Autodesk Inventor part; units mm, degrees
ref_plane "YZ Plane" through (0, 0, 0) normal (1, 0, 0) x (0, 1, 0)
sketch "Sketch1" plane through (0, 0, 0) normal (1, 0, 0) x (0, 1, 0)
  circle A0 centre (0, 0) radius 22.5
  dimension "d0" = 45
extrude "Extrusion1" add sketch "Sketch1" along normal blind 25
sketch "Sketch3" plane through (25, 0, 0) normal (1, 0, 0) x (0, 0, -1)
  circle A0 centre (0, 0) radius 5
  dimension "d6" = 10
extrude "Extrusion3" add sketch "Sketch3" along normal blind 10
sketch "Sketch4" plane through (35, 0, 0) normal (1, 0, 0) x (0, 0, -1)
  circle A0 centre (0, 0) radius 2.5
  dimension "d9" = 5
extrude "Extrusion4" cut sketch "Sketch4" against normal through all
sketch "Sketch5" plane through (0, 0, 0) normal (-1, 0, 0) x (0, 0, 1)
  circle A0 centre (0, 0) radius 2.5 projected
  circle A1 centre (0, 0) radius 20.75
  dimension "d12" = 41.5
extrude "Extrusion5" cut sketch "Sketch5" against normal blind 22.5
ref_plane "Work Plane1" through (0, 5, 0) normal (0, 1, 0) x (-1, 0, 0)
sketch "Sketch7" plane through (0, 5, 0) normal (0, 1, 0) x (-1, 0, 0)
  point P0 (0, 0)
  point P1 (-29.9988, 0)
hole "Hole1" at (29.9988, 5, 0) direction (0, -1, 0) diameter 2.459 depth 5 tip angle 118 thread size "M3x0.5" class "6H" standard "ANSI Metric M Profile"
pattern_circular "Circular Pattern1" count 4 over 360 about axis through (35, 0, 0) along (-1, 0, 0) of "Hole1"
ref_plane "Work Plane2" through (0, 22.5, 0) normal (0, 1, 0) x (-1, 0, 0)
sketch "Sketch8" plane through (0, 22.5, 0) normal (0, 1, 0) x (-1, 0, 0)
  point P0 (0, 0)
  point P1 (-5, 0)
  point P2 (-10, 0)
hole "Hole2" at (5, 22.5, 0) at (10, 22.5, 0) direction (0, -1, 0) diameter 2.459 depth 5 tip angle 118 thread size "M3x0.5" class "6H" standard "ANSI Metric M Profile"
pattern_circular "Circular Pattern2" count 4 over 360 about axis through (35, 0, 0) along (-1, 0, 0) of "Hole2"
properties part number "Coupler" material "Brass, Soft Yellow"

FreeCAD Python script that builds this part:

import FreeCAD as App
import Part
import Sketcher
from FreeCAD import Vector
Q = App.Units.Quantity

doc = App.newDocument("Part")
body = doc.addObject("PartDesign::Body", "Body")

# Sketch on YZ plane
sketch1 = body.newObject("Sketcher::SketchObject", "Sketch")
sketch1.AttachmentSupport = (doc.getObject("YZ_Plane"), [""])
sketch1.MapMode = "FlatFace"
sketch1.addGeometry(Part.Circle(Vector(0, 0, 0), Vector(0, 0, 1), 22), False)
sketch1.addConstraint([
    Sketcher.Constraint("Coincident", 0, 3, -1, 1),
    Sketcher.Constraint("Diameter", 0, Q("45 mm")),
])
pad1 = body.newObject("PartDesign::Pad", "Pad")
pad1.Profile = sketch1
pad1.Length = 25

# Sketch on YZ plane
sketch2 = body.newObject("Sketcher::SketchObject", "Sketch001")
sketch2.AttachmentSupport = (doc.getObject("YZ_Plane"), [""])
sketch2.MapMode = "FlatFace"
sketch2.AttachmentOffset = App.Placement(Vector(0, 0, 25), App.Rotation())
sketch2.addGeometry(Part.Circle(Vector(0, 0, 0), Vector(0, 0, 1), 5), False)
sketch2.addConstraint([
    Sketcher.Constraint("Coincident", 0, 3, -1, 1),
    Sketcher.Constraint("Diameter", 0, Q("10 mm")),
])
pad2 = body.newObject("PartDesign::Pad", "Pad001")
pad2.Profile = sketch2
pad2.Length = 10

# Sketch on YZ plane
sketch3 = body.newObject("Sketcher::SketchObject", "Sketch002")
sketch3.AttachmentSupport = (doc.getObject("YZ_Plane"), [""])
sketch3.MapMode = "FlatFace"
sketch3.AttachmentOffset = App.Placement(Vector(0, 0, 35), App.Rotation())
sketch3.addGeometry(Part.Circle(Vector(0, 0, 0), Vector(0, 0, 1), 2.5), False)
sketch3.addConstraint([
    Sketcher.Constraint("Coincident", 0, 3, -1, 1),
    Sketcher.Constraint("Diameter", 0, Q("5 mm")),
])
pocket1 = body.newObject("PartDesign::Pocket", "Pocket")
pocket1.Profile = sketch3
pocket1.Type = "ThroughAll"

# Sketch on YZ plane
sketch4 = body.newObject("Sketcher::SketchObject", "Sketch003")
sketch4.AttachmentSupport = (doc.getObject("YZ_Plane"), [""])
sketch4.MapMode = "FlatFace"
sketch4.addGeometry([
    Part.Circle(Vector(0, 0, 0), Vector(0, 0, 1), 20.8),
    Part.Circle(Vector(0, 0, 0), Vector(0, 0, 1), 2.5),
], False)
sketch4.addConstraint([
    Sketcher.Constraint("Coincident", 0, 3, -1, 1),
    Sketcher.Constraint("Coincident", 1, 3, -1, 1),
    Sketcher.Constraint("Diameter", 0, Q("41.5 mm")),
    Sketcher.Constraint("Diameter", 1, Q("5 mm")),
])
pocket2 = body.newObject("PartDesign::Pocket", "Pocket001")
pocket2.Profile = sketch4
pocket2.Length = 22.5
pocket2.Reversed = True

# Sketch on XZ plane
sketch5 = body.newObject("Sketcher::SketchObject", "Sketch004")
sketch5.AttachmentSupport = (doc.getObject("XZ_Plane"), [""])
sketch5.MapMode = "FlatFace"
sketch5.AttachmentOffset = App.Placement(Vector(0, 0, -5), App.Rotation())
sketch5.addGeometry(Part.Circle(Vector(30, 0, 0), Vector(0, 0, 1), 1.2), False)
sketch5.addConstraint([
    Sketcher.Constraint("PointOnObject", 0, 3, -1),
    Sketcher.Constraint("Diameter", 0, Q("2.459 mm")),
    Sketcher.Constraint("DistanceX", -1, 1, 0, 3, Q("29.9988 mm")),
])
doc.recompute()
hole = body.newObject("PartDesign::Hole", "Hole")
hole.Profile = sketch5
hole.ThreadType = "None"
hole.Diameter = 2.459
hole.DepthType = "Dimension"
hole.Depth = 5
hole.DrillPoint = "Angled"
hole.DrillPointAngle = 118
hole.Reversed = True
doc.recompute()

polarpattern = body.newObject("PartDesign::PolarPattern", "PolarPattern")
polarpattern.Originals = [hole]
polarpattern.Axis = (doc.getObject("X_Axis"), [""])
polarpattern.Angle = 360
polarpattern.Occurrences = 4
body.Tip = polarpattern

# Sketch on XZ plane
sketch6 = body.newObject("Sketcher::SketchObject", "Sketch005")
sketch6.AttachmentSupport = (doc.getObject("XZ_Plane"), [""])
sketch6.MapMode = "FlatFace"
sketch6.AttachmentOffset = App.Placement(Vector(0, 0, -22.5), App.Rotation())
sketch6.addGeometry([
    Part.Circle(Vector(5, 0, 0), Vector(0, 0, 1), 1.2),
    Part.Circle(Vector(10, 0, 0), Vector(0, 0, 1), 1.2),
], False)
sketch6.addConstraint([
    Sketcher.Constraint("Equal", 0, 1),
    Sketcher.Constraint("PointOnObject", 0, 3, -1),
    Sketcher.Constraint("PointOnObject", 1, 3, -1),
    Sketcher.Constraint("Diameter", 0, Q("2.459 mm")),
    Sketcher.Constraint("DistanceX", -1, 1, 0, 3, Q("5 mm")),
    Sketcher.Constraint("DistanceX", -1, 1, 1, 3, Q("10 mm")),
])
doc.recompute()
hole2 = body.newObject("PartDesign::Hole", "Hole001")
hole2.Profile = sketch6
hole2.ThreadType = "None"
hole2.Diameter = 2.459
hole2.DepthType = "Dimension"
hole2.Depth = 5
hole2.DrillPoint = "Angled"
hole2.DrillPointAngle = 118
hole2.Reversed = True
doc.recompute()

polarpattern2 = body.newObject("PartDesign::PolarPattern", "PolarPattern001")
polarpattern2.Originals = [hole2]
polarpattern2.Axis = (doc.getObject("X_Axis"), [""])
polarpattern2.Angle = 360
polarpattern2.Occurrences = 4
body.Tip = polarpattern2

doc.recompute()
